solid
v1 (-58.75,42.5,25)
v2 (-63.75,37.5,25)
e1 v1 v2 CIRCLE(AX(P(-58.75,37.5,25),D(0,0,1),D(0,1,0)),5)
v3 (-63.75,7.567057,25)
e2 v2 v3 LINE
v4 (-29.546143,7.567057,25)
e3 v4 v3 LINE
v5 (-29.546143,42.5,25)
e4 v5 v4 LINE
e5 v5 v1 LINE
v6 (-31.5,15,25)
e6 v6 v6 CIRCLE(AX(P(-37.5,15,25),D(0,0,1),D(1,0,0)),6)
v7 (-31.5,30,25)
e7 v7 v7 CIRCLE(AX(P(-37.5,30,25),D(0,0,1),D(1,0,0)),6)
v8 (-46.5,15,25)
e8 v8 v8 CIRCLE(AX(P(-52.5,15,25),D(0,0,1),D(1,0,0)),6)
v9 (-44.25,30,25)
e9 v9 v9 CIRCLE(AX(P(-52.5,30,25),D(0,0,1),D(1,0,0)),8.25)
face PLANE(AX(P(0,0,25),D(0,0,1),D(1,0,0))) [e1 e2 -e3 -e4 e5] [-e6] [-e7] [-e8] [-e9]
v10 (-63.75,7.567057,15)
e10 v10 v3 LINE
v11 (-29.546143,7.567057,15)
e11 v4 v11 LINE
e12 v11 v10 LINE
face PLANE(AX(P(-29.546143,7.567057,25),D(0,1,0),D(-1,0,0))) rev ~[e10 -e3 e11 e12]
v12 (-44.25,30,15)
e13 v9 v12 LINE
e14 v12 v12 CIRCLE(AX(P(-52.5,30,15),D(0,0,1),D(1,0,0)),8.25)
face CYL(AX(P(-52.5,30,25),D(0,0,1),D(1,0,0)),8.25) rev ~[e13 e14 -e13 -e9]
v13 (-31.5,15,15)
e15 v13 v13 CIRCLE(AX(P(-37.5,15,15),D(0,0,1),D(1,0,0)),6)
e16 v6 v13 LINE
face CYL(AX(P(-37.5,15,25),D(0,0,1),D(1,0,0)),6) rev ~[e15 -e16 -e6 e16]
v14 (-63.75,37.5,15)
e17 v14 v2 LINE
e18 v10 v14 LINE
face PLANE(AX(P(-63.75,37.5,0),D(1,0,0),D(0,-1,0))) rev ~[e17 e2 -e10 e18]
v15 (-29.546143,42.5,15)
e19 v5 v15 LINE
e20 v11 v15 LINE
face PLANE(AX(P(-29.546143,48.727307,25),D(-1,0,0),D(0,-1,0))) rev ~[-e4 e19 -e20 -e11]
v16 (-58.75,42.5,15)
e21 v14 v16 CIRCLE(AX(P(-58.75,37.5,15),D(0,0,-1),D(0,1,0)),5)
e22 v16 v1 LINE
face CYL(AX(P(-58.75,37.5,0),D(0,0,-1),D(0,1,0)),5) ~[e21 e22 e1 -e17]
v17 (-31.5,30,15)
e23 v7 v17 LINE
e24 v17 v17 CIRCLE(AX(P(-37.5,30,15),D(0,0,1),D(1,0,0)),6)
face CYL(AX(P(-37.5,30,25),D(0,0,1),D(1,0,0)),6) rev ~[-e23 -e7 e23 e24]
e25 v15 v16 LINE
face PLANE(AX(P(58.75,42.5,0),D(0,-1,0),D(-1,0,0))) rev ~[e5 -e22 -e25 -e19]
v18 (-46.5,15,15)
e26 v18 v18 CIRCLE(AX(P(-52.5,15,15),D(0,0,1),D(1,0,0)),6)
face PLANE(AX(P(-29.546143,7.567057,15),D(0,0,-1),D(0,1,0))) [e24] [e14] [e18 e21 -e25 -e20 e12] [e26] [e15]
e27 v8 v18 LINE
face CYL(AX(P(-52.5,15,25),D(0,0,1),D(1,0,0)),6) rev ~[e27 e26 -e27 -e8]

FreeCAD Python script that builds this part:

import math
import FreeCAD as App
import Part
import Sketcher
from FreeCAD import Vector
Q = App.Units.Quantity


def add_polygon(sketch, points):
    """Adds a closed chain of lines whose ends are joined by coincident constraints."""
    first, n = sketch.GeometryCount, len(points)
    for a, b in zip(points, points[1:] + points[:1]):
        sketch.addGeometry(Part.LineSegment(App.Vector(*a, 0), App.Vector(*b, 0)), False)
    for i in range(n):
        sketch.addConstraint(Sketcher.Constraint("Coincident", first + i, 2, first + (i + 1) % n, 1))

doc = App.newDocument("Part")
body = doc.addObject("PartDesign::Body", "Body")

# Sketch on XY plane
sketch1 = doc.addObject("Sketcher::SketchObject", "Sketch")
body.addObject(sketch1)
sketch1.AttachmentSupport = (doc.XY_Plane, [""])
sketch1.MapMode = "FlatFace"
sketch1.addGeometry(Part.LineSegment(Vector(-59, -42, 0), Vector(59, -42, 0)), False)
sketch1.addGeometry(Part.ArcOfCircle(Part.Circle(Vector(59, -38, 0), Vector(0, 0, 1), 5), math.radians(-90), math.radians(0)), False)
sketch1.addGeometry(Part.LineSegment(Vector(64, -38, 0), Vector(64, 38, 0)), False)
sketch1.addGeometry(Part.ArcOfCircle(Part.Circle(Vector(59, 38, 0), Vector(0, 0, 1), 5), math.radians(0), math.radians(90)), False)
sketch1.addGeometry(Part.LineSegment(Vector(59, 42, 0), Vector(-59, 42, 0)), False)
sketch1.addGeometry(Part.ArcOfCircle(Part.Circle(Vector(-59, 38, 0), Vector(0, 0, 1), 5), math.radians(90), math.radians(180)), False)
sketch1.addGeometry(Part.LineSegment(Vector(-64, 38, 0), Vector(-64, -38, 0)), False)
sketch1.addGeometry(Part.ArcOfCircle(Part.Circle(Vector(-59, -38, 0), Vector(0, 0, 1), 5), math.radians(180), math.radians(270)), False)
sketch1.addConstraint(Sketcher.Constraint("Tangent", 0, 2, 1, 1))
sketch1.addConstraint(Sketcher.Constraint("Tangent", 1, 2, 2, 1))
sketch1.addConstraint(Sketcher.Constraint("Tangent", 2, 2, 3, 1))
sketch1.addConstraint(Sketcher.Constraint("Tangent", 3, 2, 4, 1))
sketch1.addConstraint(Sketcher.Constraint("Tangent", 4, 2, 5, 1))
sketch1.addConstraint(Sketcher.Constraint("Tangent", 5, 2, 6, 1))
sketch1.addConstraint(Sketcher.Constraint("Tangent", 6, 2, 7, 1))
sketch1.addConstraint(Sketcher.Constraint("Tangent", 7, 2, 0, 1))
sketch1.addConstraint(Sketcher.Constraint("Horizontal", 0))
sketch1.addConstraint(Sketcher.Constraint("Vertical", 2))
sketch1.addConstraint(Sketcher.Constraint("Horizontal", 4))
sketch1.addConstraint(Sketcher.Constraint("Vertical", 6))
sketch1.addConstraint(Sketcher.Constraint("Equal", 1, 3))
sketch1.addConstraint(Sketcher.Constraint("Equal", 3, 5))
sketch1.addConstraint(Sketcher.Constraint("Equal", 5, 7))
sketch1.addConstraint(Sketcher.Constraint("Symmetric", 1, 3, 5, 3, -1, 1))
sketch1.addConstraint(Sketcher.Constraint("Radius", 1, Q("5 mm")))
sketch1.addConstraint(Sketcher.Constraint("DistanceY", 2, 1, 2, 2, Q("75 mm")))
sketch1.addConstraint(Sketcher.Constraint("DistanceX", 0, 1, 0, 2, Q("117.5 mm")))
pad1 = doc.addObject("PartDesign::Pad", "Pad")
body.addObject(pad1)
pad1.Profile = sketch1
pad1.Length = 25

# Sketch on XY plane
sketch2 = doc.addObject("Sketcher::SketchObject", "Sketch001")
body.addObject(sketch2)
sketch2.AttachmentSupport = (doc.XY_Plane, [""])
sketch2.MapMode = "FlatFace"
sketch2.AttachmentOffset = App.Placement(Vector(0, 0, 25), App.Rotation())
sketch2.addGeometry(Part.Circle(Vector(-52, 15, 0), Vector(0, 0, 1), 6), False)
sketch2.addGeometry(Part.Circle(Vector(-52, 0, 0), Vector(0, 0, 1), 6), False)
sketch2.addGeometry(Part.Circle(Vector(-52, -15, 0), Vector(0, 0, 1), 6), False)
sketch2.addGeometry(Part.Circle(Vector(-38, 30, 0), Vector(0, 0, 1), 6), False)
sketch2.addGeometry(Part.Circle(Vector(-38, 15, 0), Vector(0, 0, 1), 6), False)
sketch2.addGeometry(Part.Circle(Vector(-38, 0, 0), Vector(0, 0, 1), 6), False)
sketch2.addGeometry(Part.Circle(Vector(-38, -15, 0), Vector(0, 0, 1), 6), False)
sketch2.addGeometry(Part.Circle(Vector(-38, -30, 0), Vector(0, 0, 1), 6), False)
sketch2.addGeometry(Part.Circle(Vector(-22, 30, 0), Vector(0, 0, 1), 6), False)
sketch2.addGeometry(Part.Circle(Vector(-22, 15, 0), Vector(0, 0, 1), 6), False)
sketch2.addGeometry(Part.Circle(Vector(-22, 0, 0), Vector(0, 0, 1), 6), False)
sketch2.addGeometry(Part.Circle(Vector(-22, -15, 0), Vector(0, 0, 1), 6), False)
sketch2.addGeometry(Part.Circle(Vector(-22, -30, 0), Vector(0, 0, 1), 6), False)
sketch2.addGeometry(Part.Circle(Vector(-8, 30, 0), Vector(0, 0, 1), 6), False)
sketch2.addGeometry(Part.Circle(Vector(-8, 15, 0), Vector(0, 0, 1), 6), False)
sketch2.addGeometry(Part.Circle(Vector(-8, 0, 0), Vector(0, 0, 1), 6), False)
sketch2.addGeometry(Part.Circle(Vector(-8, -15, 0), Vector(0, 0, 1), 6), False)
sketch2.addGeometry(Part.Circle(Vector(-8, -30, 0), Vector(0, 0, 1), 6), False)
sketch2.addGeometry(Part.Circle(Vector(8, 30, 0), Vector(0, 0, 1), 6), False)
sketch2.addGeometry(Part.Circle(Vector(8, 15, 0), Vector(0, 0, 1), 6), False)
sketch2.addGeometry(Part.Circle(Vector(8, 0, 0), Vector(0, 0, 1), 6), False)
sketch2.addGeometry(Part.Circle(Vector(8, -15, 0), Vector(0, 0, 1), 6), False)
sketch2.addGeometry(Part.Circle(Vector(8, -30, 0), Vector(0, 0, 1), 6), False)
sketch2.addGeometry(Part.Circle(Vector(22, 30, 0), Vector(0, 0, 1), 6), False)
sketch2.addGeometry(Part.Circle(Vector(22, 15, 0), Vector(0, 0, 1), 6), False)
sketch2.addGeometry(Part.Circle(Vector(22, 0, 0), Vector(0, 0, 1), 6), False)
sketch2.addGeometry(Part.Circle(Vector(22, -15, 0), Vector(0, 0, 1), 6), False)
sketch2.addGeometry(Part.Circle(Vector(22, -30, 0), Vector(0, 0, 1), 6), False)
sketch2.addGeometry(Part.Circle(Vector(38, 30, 0), Vector(0, 0, 1), 6), False)
sketch2.addGeometry(Part.Circle(Vector(38, 15, 0), Vector(0, 0, 1), 6), False)
sketch2.addGeometry(Part.Circle(Vector(38, 0, 0), Vector(0, 0, 1), 6), False)
sketch2.addGeometry(Part.Circle(Vector(38, -15, 0), Vector(0, 0, 1), 6), False)
sketch2.addGeometry(Part.Circle(Vector(38, -30, 0), Vector(0, 0, 1), 6), False)
sketch2.addGeometry(Part.Circle(Vector(52, 15, 0), Vector(0, 0, 1), 6), False)
sketch2.addGeometry(Part.Circle(Vector(52, 0, 0), Vector(0, 0, 1), 6), False)
sketch2.addGeometry(Part.Circle(Vector(52, -15, 0), Vector(0, 0, 1), 6), False)
sketch2.addGeometry(Part.Circle(Vector(-52, 30, 0), Vector(0, 0, 1), 8), False)
sketch2.addGeometry(Part.Circle(Vector(-52, -30, 0), Vector(0, 0, 1), 8), False)
sketch2.addGeometry(Part.Circle(Vector(52, 30, 0), Vector(0, 0, 1), 8), False)
sketch2.addGeometry(Part.Circle(Vector(52, -30, 0), Vector(0, 0, 1), 8), False)
sketch2.addConstraint(Sketcher.Constraint("Equal", 0, 1))
sketch2.addConstraint(Sketcher.Constraint("Equal", 1, 2))
sketch2.addConstraint(Sketcher.Constraint("Equal", 2, 3))
sketch2.addConstraint(Sketcher.Constraint("Equal", 3, 4))
sketch2.addConstraint(Sketcher.Constraint("Equal", 4, 5))
sketch2.addConstraint(Sketcher.Constraint("Equal", 5, 6))
sketch2.addConstraint(Sketcher.Constraint("Equal", 6, 7))
sketch2.addConstraint(Sketcher.Constraint("Equal", 7, 8))
sketch2.addConstraint(Sketcher.Constraint("Equal", 8, 9))
sketch2.addConstraint(Sketcher.Constraint("Equal", 9, 10))
sketch2.addConstraint(Sketcher.Constraint("Equal", 10, 11))
sketch2.addConstraint(Sketcher.Constraint("Equal", 11, 12))
sketch2.addConstraint(Sketcher.Constraint("Equal", 12, 13))
sketch2.addConstraint(Sketcher.Constraint("Equal", 13, 14))
sketch2.addConstraint(Sketcher.Constraint("Equal", 14, 15))
sketch2.addConstraint(Sketcher.Constraint("Equal", 15, 16))
sketch2.addConstraint(Sketcher.Constraint("Equal", 16, 17))
sketch2.addConstraint(Sketcher.Constraint("Equal", 17, 18))
sketch2.addConstraint(Sketcher.Constraint("Equal", 18, 19))
sketch2.addConstraint(Sketcher.Constraint("Equal", 19, 20))
sketch2.addConstraint(Sketcher.Constraint("Equal", 20, 21))
sketch2.addConstraint(Sketcher.Constraint("Equal", 21, 22))
sketch2.addConstraint(Sketcher.Constraint("Equal", 22, 23))
sketch2.addConstraint(Sketcher.Constraint("Equal", 23, 24))
sketch2.addConstraint(Sketcher.Constraint("Equal", 24, 25))
sketch2.addConstraint(Sketcher.Constraint("Equal", 25, 26))
sketch2.addConstraint(Sketcher.Constraint("Equal", 26, 27))
sketch2.addConstraint(Sketcher.Constraint("Equal", 27, 28))
sketch2.addConstraint(Sketcher.Constraint("Equal", 28, 29))
sketch2.addConstraint(Sketcher.Constraint("Equal", 29, 30))
sketch2.addConstraint(Sketcher.Constraint("Equal", 30, 31))
sketch2.addConstraint(Sketcher.Constraint("Equal", 31, 32))
sketch2.addConstraint(Sketcher.Constraint("Equal", 32, 33))
sketch2.addConstraint(Sketcher.Constraint("Equal", 33, 34))
sketch2.addConstraint(Sketcher.Constraint("Equal", 34, 35))
sketch2.addConstraint(Sketcher.Constraint("Equal", 37, 38))
sketch2.addConstraint(Sketcher.Constraint("Equal", 38, 39))
sketch2.addConstraint(Sketcher.Constraint("Symmetric", 17, 3, 18, 3, -1, 1))
sketch2.addConstraint(Sketcher.Constraint("Symmetric", 16, 3, 19, 3, -1, 1))
sketch2.addConstraint(Sketcher.Constraint("Symmetric", 15, 3, 20, 3, -1, 1))
sketch2.addConstraint(Sketcher.Constraint("Symmetric", 14, 3, 21, 3, -1, 1))
sketch2.addConstraint(Sketcher.Constraint("Symmetric", 13, 3, 22, 3, -1, 1))
sketch2.addConstraint(Sketcher.Constraint("Symmetric", 12, 3, 23, 3, -1, 1))
sketch2.addConstraint(Sketcher.Constraint("Symmetric", 11, 3, 24, 3, -1, 1))
sketch2.addConstraint(Sketcher.Constraint("Symmetric", 10, 3, 25, 3, -1, 1))
sketch2.addConstraint(Sketcher.Constraint("Symmetric", 9, 3, 26, 3, -1, 1))
sketch2.addConstraint(Sketcher.Constraint("Symmetric", 8, 3, 27, 3, -1, 1))
sketch2.addConstraint(Sketcher.Constraint("Symmetric", 7, 3, 28, 3, -1, 1))
sketch2.addConstraint(Sketcher.Constraint("Symmetric", 6, 3, 29, 3, -1, 1))
sketch2.addConstraint(Sketcher.Constraint("Symmetric", 5, 3, 30, 3, -1, 1))
sketch2.addConstraint(Sketcher.Constraint("Symmetric", 4, 3, 31, 3, -1, 1))
sketch2.addConstraint(Sketcher.Constraint("Symmetric", 3, 3, 32, 3, -1, 1))
sketch2.addConstraint(Sketcher.Constraint("Symmetric", 2, 3, 33, 3, -1, 1))
sketch2.addConstraint(Sketcher.Constraint("Symmetric", 1, 3, 34, 3, -1, 1))
sketch2.addConstraint(Sketcher.Constraint("Symmetric", 0, 3, 35, 3, -1, 1))
sketch2.addConstraint(Sketcher.Constraint("Symmetric", 37, 3, 38, 3, -1, 1))
sketch2.addConstraint(Sketcher.Constraint("Symmetric", 36, 3, 39, 3, -1, 1))
sketch2.addConstraint(Sketcher.Constraint("Symmetric", 13, 3, 18, 3, -2))
sketch2.addConstraint(Sketcher.Constraint("Symmetric", 14, 3, 19, 3, -2))
sketch2.addConstraint(Sketcher.Constraint("Symmetric", 8, 3, 23, 3, -2))
sketch2.addConstraint(Sketcher.Constraint("Symmetric", 9, 3, 24, 3, -2))
sketch2.addConstraint(Sketcher.Constraint("Symmetric", 3, 3, 28, 3, -2))
sketch2.addConstraint(Sketcher.Constraint("Symmetric", 4, 3, 29, 3, -2))
sketch2.addConstraint(Sketcher.Constraint("Symmetric", 0, 3, 33, 3, -2))
sketch2.addConstraint(Sketcher.Constraint("Symmetric", 36, 3, 38, 3, -2))
sketch2.addConstraint(Sketcher.Constraint("PointOnObject", 1, 3, -1))
sketch2.addConstraint(Sketcher.Constraint("PointOnObject", 5, 3, -1))
sketch2.addConstraint(Sketcher.Constraint("PointOnObject", 10, 3, -1))
sketch2.addConstraint(Sketcher.Constraint("PointOnObject", 15, 3, -1))
sketch2.addConstraint(Sketcher.Constraint("Horizontal", 0, 3, 4, 3))
sketch2.addConstraint(Sketcher.Constraint("Horizontal", 3, 3, 8, 3))
sketch2.addConstraint(Sketcher.Constraint("Horizontal", 4, 3, 9, 3))
sketch2.addConstraint(Sketcher.Constraint("Horizontal", 8, 3, 13, 3))
sketch2.addConstraint(Sketcher.Constraint("Horizontal", 9, 3, 14, 3))
sketch2.addConstraint(Sketcher.Constraint("Horizontal", 28, 3, 36, 3))
sketch2.addConstraint(Sketcher.Constraint("Vertical", 0, 3, 1, 3))
sketch2.addConstraint(Sketcher.Constraint("Vertical", 3, 3, 4, 3))
sketch2.addConstraint(Sketcher.Constraint("Vertical", 4, 3, 5, 3))
sketch2.addConstraint(Sketcher.Constraint("Vertical", 8, 3, 9, 3))
sketch2.addConstraint(Sketcher.Constraint("Vertical", 9, 3, 10, 3))
sketch2.addConstraint(Sketcher.Constraint("Vertical", 13, 3, 14, 3))
sketch2.addConstraint(Sketcher.Constraint("Vertical", 14, 3, 15, 3))
sketch2.addConstraint(Sketcher.Constraint("Vertical", 2, 3, 36, 3))
sketch2.addConstraint(Sketcher.Constraint("Diameter", 0, Q("12 mm")))
sketch2.addConstraint(Sketcher.Constraint("Diameter", 37, Q("16 mm")))
sketch2.addConstraint(Sketcher.Constraint("Diameter", 36, Q("16.5 mm")))
sketch2.addConstraint(Sketcher.Constraint("DistanceY", -1, 1, 0, 3, Q("15 mm")))
sketch2.addConstraint(Sketcher.Constraint("DistanceY", -1, 1, 3, 3, Q("30 mm")))
sketch2.addConstraint(Sketcher.Constraint("DistanceX", 0, 3, 3, 3, Q("15 mm")))
sketch2.addConstraint(Sketcher.Constraint("DistanceX", 3, 3, 8, 3, Q("15 mm")))
sketch2.addConstraint(Sketcher.Constraint("DistanceX", 8, 3, 13, 3, Q("15 mm")))
sketch2.addConstraint(Sketcher.Constraint("DistanceX", 13, 3, 18, 3, Q("15 mm")))
pocket1 = doc.addObject("PartDesign::Pocket", "Pocket")
body.addObject(pocket1)
pocket1.Profile = sketch2
pocket1.Length = 20

# Sketch on XY plane
sketch3 = doc.addObject("Sketcher::SketchObject", "Sketch002")
body.addObject(sketch3)
sketch3.AttachmentSupport = (doc.XY_Plane, [""])
sketch3.MapMode = "FlatFace"
sketch3.AttachmentOffset = App.Placement(Vector(0, 0, 25), App.Rotation())
add_polygon(sketch3, [(70, -59), (70, 49), (-30, 49), (-30, 8), (-74, 8), (-74, -59)])  # lines 0-5
sketch3.addConstraint(Sketcher.Constraint("Vertical", 0))
sketch3.addConstraint(Sketcher.Constraint("Horizontal", 1))
sketch3.addConstraint(Sketcher.Constraint("Vertical", 2))
sketch3.addConstraint(Sketcher.Constraint("Horizontal", 3))
sketch3.addConstraint(Sketcher.Constraint("Vertical", 4))
sketch3.addConstraint(Sketcher.Constraint("Horizontal", 5))
sketch3.addConstraint(Sketcher.Constraint("DistanceX", 1, 2, 1, 1, Q("99.122548 mm")))
sketch3.addConstraint(Sketcher.Constraint("DistanceY", 2, 2, 2, 1, Q("41.16025 mm")))
sketch3.addConstraint(Sketcher.Constraint("DistanceY", 4, 2, -1, 1, Q("59.449699 mm")))
sketch3.addConstraint(Sketcher.Constraint("DistanceX", 3, 2, 3, 1, Q("44.717094 mm")))
sketch3.addConstraint(Sketcher.Constraint("DistanceY", 0, 1, 0, 2, Q("108.177006 mm")))
sketch3.addConstraint(Sketcher.Constraint("DistanceX", -1, 1, 0, 2, Q("69.576405 mm")))
pocket2 = doc.addObject("PartDesign::Pocket", "Pocket001")
body.addObject(pocket2)
pocket2.Profile = sketch3
pocket2.Type = "ThroughAll"

# Sketch on YZ plane
sketch4 = doc.addObject("Sketcher::SketchObject", "Sketch003")
body.addObject(sketch4)
sketch4.AttachmentSupport = (doc.YZ_Plane, [""])
sketch4.MapMode = "FlatFace"
sketch4.AttachmentOffset = App.Placement(Vector(0, 0, -29.546143), App.Rotation())
add_polygon(sketch4, [(8, 15), (8, 0), (42, 0), (42, 15)])  # lines 0-3
sketch4.addConstraint(Sketcher.Constraint("Vertical", 0))
sketch4.addConstraint(Sketcher.Constraint("Horizontal", 1))
sketch4.addConstraint(Sketcher.Constraint("Vertical", 2))
sketch4.addConstraint(Sketcher.Constraint("Horizontal", 3))
sketch4.addConstraint(Sketcher.Constraint("PointOnObject", 0, 2, -1))
sketch4.addConstraint(Sketcher.Constraint("DistanceY", 0, 2, 0, 1, Q("15 mm")))
sketch4.addConstraint(Sketcher.Constraint("DistanceX", -1, 1, 1, 2, Q("42.5 mm")))
sketch4.addConstraint(Sketcher.Constraint("DistanceX", 1, 1, 1, 2, Q("34.932943 mm")))
pocket3 = doc.addObject("PartDesign::Pocket", "Pocket002")
body.addObject(pocket3)
pocket3.Profile = sketch4
pocket3.Type = "ThroughAll"

doc.recompute()
